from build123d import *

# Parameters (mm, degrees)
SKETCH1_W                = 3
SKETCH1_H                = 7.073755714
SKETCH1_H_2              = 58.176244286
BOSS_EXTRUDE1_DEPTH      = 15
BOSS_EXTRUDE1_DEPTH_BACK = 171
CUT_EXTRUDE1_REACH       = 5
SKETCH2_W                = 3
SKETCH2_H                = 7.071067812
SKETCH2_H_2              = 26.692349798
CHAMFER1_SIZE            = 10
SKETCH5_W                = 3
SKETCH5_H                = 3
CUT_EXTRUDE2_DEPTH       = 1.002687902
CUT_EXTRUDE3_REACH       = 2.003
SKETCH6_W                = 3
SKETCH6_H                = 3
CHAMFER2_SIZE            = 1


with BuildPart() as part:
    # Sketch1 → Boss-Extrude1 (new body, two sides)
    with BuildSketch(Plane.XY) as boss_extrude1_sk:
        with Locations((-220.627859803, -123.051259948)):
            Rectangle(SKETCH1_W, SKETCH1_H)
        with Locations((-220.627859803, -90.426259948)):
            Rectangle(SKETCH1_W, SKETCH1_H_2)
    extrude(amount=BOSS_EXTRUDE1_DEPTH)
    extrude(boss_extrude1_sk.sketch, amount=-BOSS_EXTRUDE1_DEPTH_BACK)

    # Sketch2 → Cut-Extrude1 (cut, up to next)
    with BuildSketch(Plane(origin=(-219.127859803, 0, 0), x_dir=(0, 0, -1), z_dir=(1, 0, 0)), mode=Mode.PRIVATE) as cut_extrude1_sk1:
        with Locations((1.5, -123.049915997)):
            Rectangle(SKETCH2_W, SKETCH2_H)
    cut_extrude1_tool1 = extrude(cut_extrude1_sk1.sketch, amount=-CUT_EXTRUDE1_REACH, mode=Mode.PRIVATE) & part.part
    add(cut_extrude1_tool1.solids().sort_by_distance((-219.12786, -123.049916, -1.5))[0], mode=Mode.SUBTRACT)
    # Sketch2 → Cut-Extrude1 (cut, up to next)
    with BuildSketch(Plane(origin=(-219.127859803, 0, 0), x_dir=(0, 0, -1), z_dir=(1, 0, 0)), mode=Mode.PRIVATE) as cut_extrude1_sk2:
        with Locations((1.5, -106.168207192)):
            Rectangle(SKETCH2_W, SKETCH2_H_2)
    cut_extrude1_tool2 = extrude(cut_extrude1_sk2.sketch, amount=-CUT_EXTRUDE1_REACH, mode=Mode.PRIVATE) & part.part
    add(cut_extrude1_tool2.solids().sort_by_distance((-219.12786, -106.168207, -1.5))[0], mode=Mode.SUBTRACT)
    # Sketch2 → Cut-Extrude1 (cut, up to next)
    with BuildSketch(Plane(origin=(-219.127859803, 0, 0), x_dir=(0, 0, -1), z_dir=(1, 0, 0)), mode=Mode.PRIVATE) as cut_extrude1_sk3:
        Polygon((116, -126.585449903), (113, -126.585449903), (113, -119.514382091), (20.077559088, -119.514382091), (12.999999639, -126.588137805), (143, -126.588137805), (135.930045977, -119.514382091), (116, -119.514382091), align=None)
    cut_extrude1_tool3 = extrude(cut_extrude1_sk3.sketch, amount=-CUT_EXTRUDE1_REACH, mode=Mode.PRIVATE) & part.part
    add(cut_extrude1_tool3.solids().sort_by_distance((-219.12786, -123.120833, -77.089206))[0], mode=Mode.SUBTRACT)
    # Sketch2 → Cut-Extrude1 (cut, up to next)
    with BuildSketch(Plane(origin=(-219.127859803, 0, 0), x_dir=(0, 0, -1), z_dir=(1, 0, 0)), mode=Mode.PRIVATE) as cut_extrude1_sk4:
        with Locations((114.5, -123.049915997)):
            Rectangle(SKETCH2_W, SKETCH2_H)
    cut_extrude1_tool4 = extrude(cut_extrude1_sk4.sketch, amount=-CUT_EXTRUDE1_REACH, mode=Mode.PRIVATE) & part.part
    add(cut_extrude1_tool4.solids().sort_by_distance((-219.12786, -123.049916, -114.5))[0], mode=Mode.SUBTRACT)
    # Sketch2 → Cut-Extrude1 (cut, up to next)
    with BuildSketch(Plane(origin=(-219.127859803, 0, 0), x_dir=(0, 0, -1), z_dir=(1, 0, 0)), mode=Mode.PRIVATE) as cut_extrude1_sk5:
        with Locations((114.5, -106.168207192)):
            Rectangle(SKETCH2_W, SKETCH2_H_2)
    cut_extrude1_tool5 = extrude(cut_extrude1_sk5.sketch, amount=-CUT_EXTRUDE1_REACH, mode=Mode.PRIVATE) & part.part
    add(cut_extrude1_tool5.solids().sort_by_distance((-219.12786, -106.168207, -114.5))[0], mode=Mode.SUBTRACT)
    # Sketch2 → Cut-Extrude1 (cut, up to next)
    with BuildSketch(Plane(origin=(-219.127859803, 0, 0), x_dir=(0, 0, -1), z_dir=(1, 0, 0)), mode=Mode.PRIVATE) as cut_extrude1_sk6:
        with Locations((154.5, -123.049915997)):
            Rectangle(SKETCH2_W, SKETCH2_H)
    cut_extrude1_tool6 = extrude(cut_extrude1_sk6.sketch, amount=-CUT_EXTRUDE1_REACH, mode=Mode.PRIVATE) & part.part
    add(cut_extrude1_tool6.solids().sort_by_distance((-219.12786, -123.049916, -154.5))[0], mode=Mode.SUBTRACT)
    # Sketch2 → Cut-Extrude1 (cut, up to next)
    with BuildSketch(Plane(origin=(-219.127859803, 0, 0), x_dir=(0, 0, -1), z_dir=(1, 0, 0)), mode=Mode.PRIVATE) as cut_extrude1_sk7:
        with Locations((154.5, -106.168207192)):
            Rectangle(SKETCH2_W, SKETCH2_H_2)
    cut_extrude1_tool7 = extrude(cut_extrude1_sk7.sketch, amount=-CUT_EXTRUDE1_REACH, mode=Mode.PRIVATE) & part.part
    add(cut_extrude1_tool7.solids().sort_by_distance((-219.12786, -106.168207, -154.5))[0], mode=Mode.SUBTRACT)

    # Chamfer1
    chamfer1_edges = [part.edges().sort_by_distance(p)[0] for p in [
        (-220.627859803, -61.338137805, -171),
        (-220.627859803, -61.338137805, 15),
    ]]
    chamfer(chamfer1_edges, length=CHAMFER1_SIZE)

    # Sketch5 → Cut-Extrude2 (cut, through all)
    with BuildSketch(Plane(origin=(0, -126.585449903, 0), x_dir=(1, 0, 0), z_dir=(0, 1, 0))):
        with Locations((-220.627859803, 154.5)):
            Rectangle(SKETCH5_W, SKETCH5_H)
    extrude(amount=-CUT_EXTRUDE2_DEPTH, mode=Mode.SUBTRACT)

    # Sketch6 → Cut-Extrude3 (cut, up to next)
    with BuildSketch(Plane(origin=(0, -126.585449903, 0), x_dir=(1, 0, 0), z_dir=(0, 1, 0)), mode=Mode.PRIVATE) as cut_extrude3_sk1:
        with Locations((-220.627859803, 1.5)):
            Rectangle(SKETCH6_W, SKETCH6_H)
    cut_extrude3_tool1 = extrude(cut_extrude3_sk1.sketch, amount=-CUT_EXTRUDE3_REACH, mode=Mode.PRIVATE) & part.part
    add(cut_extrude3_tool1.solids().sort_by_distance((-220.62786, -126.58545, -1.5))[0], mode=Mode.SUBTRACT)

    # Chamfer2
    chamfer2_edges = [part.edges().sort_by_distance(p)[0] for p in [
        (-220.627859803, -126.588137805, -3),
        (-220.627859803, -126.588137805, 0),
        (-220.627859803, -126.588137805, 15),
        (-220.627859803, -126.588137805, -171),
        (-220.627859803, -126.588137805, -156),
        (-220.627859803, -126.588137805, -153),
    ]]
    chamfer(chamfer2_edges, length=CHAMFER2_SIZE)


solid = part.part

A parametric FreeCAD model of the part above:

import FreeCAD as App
import Part
import Sketcher
Q = App.Units.Quantity


def edges_at(feature, points):
    """Names of the edges that pass closest to the given points."""
    edges = feature.Shape.Edges
    near = lambda p: min(range(len(edges)), key=lambda i: edges[i].distToShape(Part.Vertex(*p))[0])
    return sorted({f"Edge{near(p) + 1}" for p in points})


def add_polygon(sketch, points):
    """Adds a closed chain of lines whose ends are joined by coincident constraints."""
    first, n = sketch.GeometryCount, len(points)
    for a, b in zip(points, points[1:] + points[:1]):
        sketch.addGeometry(Part.LineSegment(App.Vector(*a, 0), App.Vector(*b, 0)), False)
    for i in range(n):
        sketch.addConstraint(Sketcher.Constraint("Coincident", first + i, 2, first + (i + 1) % n, 1))

doc = App.newDocument("Part")
body = doc.addObject("PartDesign::Body", "Body")

sketch1 = body.newObject("Sketcher::SketchObject", "Sketch")
sketch1.AttachmentSupport = (doc.getObject("XY_Plane"), [""])
sketch1.MapMode = "FlatFace"
add_polygon(sketch1, [(-222.12786, -126.588138), (-219.12786, -126.588138), (-219.12786, -61.338138), (-222.12786, -61.338138)])
sketch1.addConstraint(Sketcher.Constraint("Horizontal", 0))
sketch1.addConstraint(Sketcher.Constraint("Vertical", 1))
sketch1.addConstraint(Sketcher.Constraint("Horizontal", 2))
sketch1.addConstraint(Sketcher.Constraint("Vertical", 3))
sketch1.addConstraint(Sketcher.Constraint("DistanceX", 0, 1, 0, 2, Q("3 mm")))
sketch1.addConstraint(Sketcher.Constraint("DistanceY", 1, 1, 1, 2, Q("65.25 mm")))
sketch1.addConstraint(Sketcher.Constraint("DistanceX", 0, 2, -1, 1, Q("219.12786 mm")))
sketch1.addConstraint(Sketcher.Constraint("DistanceY", 0, 2, -1, 1, Q("126.588138 mm")))
pad1 = body.newObject("PartDesign::Pad", "Pad")
pad1.Profile = sketch1
pad1.Type = "TwoLengths"
pad1.Length = 15
pad1.Length2 = 171

sketch2 = body.newObject("Sketcher::SketchObject", "Sketch001")
sketch2.AttachmentSupport = (doc.getObject("YZ_Plane"), [""])
sketch2.MapMode = "FlatFace"
sketch2.AttachmentOffset = App.Placement(App.Vector(0, 0, -219.12786), App.Rotation())
add_polygon(sketch2, [(-119.514382, 0), (-126.58545, 0), (-126.58545, -3), (-119.514382, -3)])
sketch2.addConstraint(Sketcher.Constraint("Horizontal", 0))
sketch2.addConstraint(Sketcher.Constraint("Vertical", 1))
sketch2.addConstraint(Sketcher.Constraint("Horizontal", 2))
sketch2.addConstraint(Sketcher.Constraint("Vertical", 3))
sketch2.addConstraint(Sketcher.Constraint("PointOnObject", 0, 2, -1))
sketch2.addConstraint(Sketcher.Constraint("DistanceY", 1, 2, 1, 1, Q("3 mm")))
sketch2.addConstraint(Sketcher.Constraint("DistanceX", 0, 2, 0, 1, Q("7.071068 mm")))
sketch2.addConstraint(Sketcher.Constraint("DistanceX", 0, 2, -1, 1, Q("126.58545 mm")))
pocket1 = body.newObject("PartDesign::Pocket", "Pocket")
pocket1.Profile = sketch2
pocket1.Type = "UpToFirst"

sketch3 = body.newObject("Sketcher::SketchObject", "Sketch002")
sketch3.AttachmentSupport = (doc.getObject("YZ_Plane"), [""])
sketch3.MapMode = "FlatFace"
sketch3.AttachmentOffset = App.Placement(App.Vector(0, 0, -219.12786), App.Rotation())
add_polygon(sketch3, [(-92.822032, 0), (-119.514382, 0), (-119.514382, -3), (-92.822032, -3)])
sketch3.addConstraint(Sketcher.Constraint("Horizontal", 0))
sketch3.addConstraint(Sketcher.Constraint("Vertical", 1))
sketch3.addConstraint(Sketcher.Constraint("Horizontal", 2))
sketch3.addConstraint(Sketcher.Constraint("Vertical", 3))
sketch3.addConstraint(Sketcher.Constraint("PointOnObject", 0, 2, -1))
sketch3.addConstraint(Sketcher.Constraint("DistanceY", 1, 2, 1, 1, Q("3 mm")))
sketch3.addConstraint(Sketcher.Constraint("DistanceX", 0, 2, 0, 1, Q("26.69235 mm")))
sketch3.addConstraint(Sketcher.Constraint("DistanceX", 0, 2, -1, 1, Q("119.514382 mm")))
pocket2 = body.newObject("PartDesign::Pocket", "Pocket001")
pocket2.Profile = sketch3
pocket2.Type = "UpToFirst"

sketch4 = body.newObject("Sketcher::SketchObject", "Sketch003")
sketch4.AttachmentSupport = (doc.getObject("YZ_Plane"), [""])
sketch4.MapMode = "FlatFace"
sketch4.AttachmentOffset = App.Placement(App.Vector(0, 0, -219.12786), App.Rotation())
add_polygon(sketch4, [(-126.58545, -116), (-126.58545, -113), (-119.514382, -113), (-119.514382, -20.077559), (-126.588138, -13), (-126.588138, -143), (-119.514382, -135.930046), (-119.514382, -116)])
sketch4.addConstraint(Sketcher.Constraint("Vertical", 0))
sketch4.addConstraint(Sketcher.Constraint("Horizontal", 1))
sketch4.addConstraint(Sketcher.Constraint("Vertical", 2))
sketch4.addConstraint(Sketcher.Constraint("Vertical", 4))
sketch4.addConstraint(Sketcher.Constraint("Vertical", 6))
sketch4.addConstraint(Sketcher.Constraint("Horizontal", 7))
sketch4.addConstraint(Sketcher.Constraint("Perpendicular", 3, 5))
sketch4.addConstraint(Sketcher.Constraint("Vertical", 2, 2, 5, 2))
sketch4.addConstraint(Sketcher.Constraint("DistanceY", 0, 1, 0, 2, Q("3 mm")))
sketch4.addConstraint(Sketcher.Constraint("DistanceY", 4, 2, 4, 1, Q("130 mm")))
sketch4.addConstraint(Sketcher.Constraint("DistanceY", 0, 2, -1, 1, Q("113 mm")))
sketch4.addConstraint(Sketcher.Constraint("DistanceY", 3, 2, -1, 1, Q("13 mm")))
sketch4.addConstraint(Sketcher.Constraint("DistanceY", 2, 1, 2, 2, Q("92.922441 mm")))
sketch4.addConstraint(Sketcher.Constraint("Distance", 3, Q("10.006491 mm")))
sketch4.addConstraint(Sketcher.Constraint("DistanceX", 1, 1, 1, 2, Q("7.071068 mm")))
sketch4.addConstraint(Sketcher.Constraint("DistanceX", 0, 2, -1, 1, Q("126.58545 mm")))
pocket3 = body.newObject("PartDesign::Pocket", "Pocket002")
pocket3.Profile = sketch4
pocket3.Type = "UpToFirst"

sketch5 = body.newObject("Sketcher::SketchObject", "Sketch004")
sketch5.AttachmentSupport = (doc.getObject("YZ_Plane"), [""])
sketch5.MapMode = "FlatFace"
sketch5.AttachmentOffset = App.Placement(App.Vector(0, 0, -219.12786), App.Rotation())
add_polygon(sketch5, [(-119.514382, -113), (-126.58545, -113), (-126.58545, -116), (-119.514382, -116)])
sketch5.addConstraint(Sketcher.Constraint("Horizontal", 0))
sketch5.addConstraint(Sketcher.Constraint("Vertical", 1))
sketch5.addConstraint(Sketcher.Constraint("Horizontal", 2))
sketch5.addConstraint(Sketcher.Constraint("Vertical", 3))
sketch5.addConstraint(Sketcher.Constraint("DistanceY", 1, 2, 1, 1, Q("3 mm")))
sketch5.addConstraint(Sketcher.Constraint("DistanceY", 0, 2, -1, 1, Q("113 mm")))
sketch5.addConstraint(Sketcher.Constraint("DistanceX", 0, 2, 0, 1, Q("7.071068 mm")))
sketch5.addConstraint(Sketcher.Constraint("DistanceX", 0, 2, -1, 1, Q("126.58545 mm")))
pocket4 = body.newObject("PartDesign::Pocket", "Pocket003")
pocket4.Profile = sketch5
pocket4.Type = "UpToFirst"

sketch6 = body.newObject("Sketcher::SketchObject", "Sketch005")
sketch6.AttachmentSupport = (doc.getObject("YZ_Plane"), [""])
sketch6.MapMode = "FlatFace"
sketch6.AttachmentOffset = App.Placement(App.Vector(0, 0, -219.12786), App.Rotation())
add_polygon(sketch6, [(-92.822032, -113), (-119.514382, -113), (-119.514382, -116), (-92.822032, -116)])
sketch6.addConstraint(Sketcher.Constraint("Horizontal", 0))
sketch6.addConstraint(Sketcher.Constraint("Vertical", 1))
sketch6.addConstraint(Sketcher.Constraint("Horizontal", 2))
sketch6.addConstraint(Sketcher.Constraint("Vertical", 3))
sketch6.addConstraint(Sketcher.Constraint("DistanceY", 1, 2, 1, 1, Q("3 mm")))
sketch6.addConstraint(Sketcher.Constraint("DistanceY", 0, 2, -1, 1, Q("113 mm")))
sketch6.addConstraint(Sketcher.Constraint("DistanceX", 0, 2, 0, 1, Q("26.69235 mm")))
sketch6.addConstraint(Sketcher.Constraint("DistanceX", 0, 2, -1, 1, Q("119.514382 mm")))
pocket5 = body.newObject("PartDesign::Pocket", "Pocket004")
pocket5.Profile = sketch6
pocket5.Type = "UpToFirst"

sketch7 = body.newObject("Sketcher::SketchObject", "Sketch006")
sketch7.AttachmentSupport = (doc.getObject("YZ_Plane"), [""])
sketch7.MapMode = "FlatFace"
sketch7.AttachmentOffset = App.Placement(App.Vector(0, 0, -219.12786), App.Rotation())
add_polygon(sketch7, [(-119.514382, -153), (-126.58545, -153), (-126.58545, -156), (-119.514382, -156)])
sketch7.addConstraint(Sketcher.Constraint("Horizontal", 0))
sketch7.addConstraint(Sketcher.Constraint("Vertical", 1))
sketch7.addConstraint(Sketcher.Constraint("Horizontal", 2))
sketch7.addConstraint(Sketcher.Constraint("Vertical", 3))
sketch7.addConstraint(Sketcher.Constraint("DistanceY", 1, 2, 1, 1, Q("3 mm")))
sketch7.addConstraint(Sketcher.Constraint("DistanceY", 0, 2, -1, 1, Q("153 mm")))
sketch7.addConstraint(Sketcher.Constraint("DistanceX", 0, 2, 0, 1, Q("7.071068 mm")))
sketch7.addConstraint(Sketcher.Constraint("DistanceX", 0, 2, -1, 1, Q("126.58545 mm")))
pocket6 = body.newObject("PartDesign::Pocket", "Pocket005")
pocket6.Profile = sketch7
pocket6.Type = "UpToFirst"

sketch8 = body.newObject("Sketcher::SketchObject", "Sketch007")
sketch8.AttachmentSupport = (doc.getObject("YZ_Plane"), [""])
sketch8.MapMode = "FlatFace"
sketch8.AttachmentOffset = App.Placement(App.Vector(0, 0, -219.12786), App.Rotation())
add_polygon(sketch8, [(-92.822032, -153), (-119.514382, -153), (-119.514382, -156), (-92.822032, -156)])
sketch8.addConstraint(Sketcher.Constraint("Horizontal", 0))
sketch8.addConstraint(Sketcher.Constraint("Vertical", 1))
sketch8.addConstraint(Sketcher.Constraint("Horizontal", 2))
sketch8.addConstraint(Sketcher.Constraint("Vertical", 3))
sketch8.addConstraint(Sketcher.Constraint("DistanceY", 1, 2, 1, 1, Q("3 mm")))
sketch8.addConstraint(Sketcher.Constraint("DistanceY", 0, 2, -1, 1, Q("153 mm")))
sketch8.addConstraint(Sketcher.Constraint("DistanceX", 0, 2, 0, 1, Q("26.69235 mm")))
sketch8.addConstraint(Sketcher.Constraint("DistanceX", 0, 2, -1, 1, Q("119.514382 mm")))
pocket7 = body.newObject("PartDesign::Pocket", "Pocket006")
pocket7.Profile = sketch8
pocket7.Type = "UpToFirst"
doc.recompute()

chamfer = body.newObject("PartDesign::Chamfer", "Chamfer")
chamfer.Base = (pocket7, edges_at(pocket7, [(-220.628, -61.338, -171), (-220.628, -61.338, 15)]))
chamfer.Size = 10

sketch9 = body.newObject("Sketcher::SketchObject", "Sketch008")
sketch9.AttachmentSupport = (doc.getObject("XZ_Plane"), [""])
sketch9.MapMode = "FlatFace"
sketch9.AttachmentOffset = App.Placement(App.Vector(0, 0, 126.58545), App.Rotation())
add_polygon(sketch9, [(-222.12786, -156), (-222.12786, -153), (-219.12786, -153), (-219.12786, -156)])
sketch9.addConstraint(Sketcher.Constraint("Vertical", 0))
sketch9.addConstraint(Sketcher.Constraint("Horizontal", 1))
sketch9.addConstraint(Sketcher.Constraint("Vertical", 2))
sketch9.addConstraint(Sketcher.Constraint("Horizontal", 3))
sketch9.addConstraint(Sketcher.Constraint("Equal", 3, 0))
sketch9.addConstraint(Sketcher.Constraint("DistanceX", 1, 1, 1, 2, Q("3 mm")))
sketch9.addConstraint(Sketcher.Constraint("DistanceY", 0, 2, -1, 1, Q("153 mm")))
sketch9.addConstraint(Sketcher.Constraint("DistanceX", 0, 2, -1, 1, Q("222.12786 mm")))
pocket8 = body.newObject("PartDesign::Pocket", "Pocket007")
pocket8.Profile = sketch9
pocket8.Type = "ThroughAll"
pocket8.Reversed = True

sketch10 = body.newObject("Sketcher::SketchObject", "Sketch009")
sketch10.AttachmentSupport = (doc.getObject("XZ_Plane"), [""])
sketch10.MapMode = "FlatFace"
sketch10.AttachmentOffset = App.Placement(App.Vector(0, 0, 126.58545), App.Rotation())
add_polygon(sketch10, [(-222.12786, -3), (-222.12786, 0), (-219.12786, 0), (-219.12786, -3)])
sketch10.addConstraint(Sketcher.Constraint("Vertical", 0))
sketch10.addConstraint(Sketcher.Constraint("Horizontal", 1))
sketch10.addConstraint(Sketcher.Constraint("Vertical", 2))
sketch10.addConstraint(Sketcher.Constraint("Horizontal", 3))
sketch10.addConstraint(Sketcher.Constraint("PointOnObject", 0, 2, -1))
sketch10.addConstraint(Sketcher.Constraint("Equal", 3, 0))
sketch10.addConstraint(Sketcher.Constraint("DistanceX", 1, 1, 1, 2, Q("3 mm")))
sketch10.addConstraint(Sketcher.Constraint("DistanceX", 0, 2, -1, 1, Q("222.12786 mm")))
pocket9 = body.newObject("PartDesign::Pocket", "Pocket008")
pocket9.Profile = sketch10
pocket9.Type = "UpToFirst"
pocket9.Reversed = True
doc.recompute()

chamfer2 = body.newObject("PartDesign::Chamfer", "Chamfer001")
chamfer2.Base = (pocket9, edges_at(pocket9, [
    (-220.628, -126.588, -3),
    (-220.628, -126.588, 0),
    (-220.628, -126.588, 15),
    (-220.628, -126.588, -171),
    (-220.628, -126.588, -156),
    (-220.628, -126.588, -153),
]))
chamfer2.Size = 1

doc.recompute()
